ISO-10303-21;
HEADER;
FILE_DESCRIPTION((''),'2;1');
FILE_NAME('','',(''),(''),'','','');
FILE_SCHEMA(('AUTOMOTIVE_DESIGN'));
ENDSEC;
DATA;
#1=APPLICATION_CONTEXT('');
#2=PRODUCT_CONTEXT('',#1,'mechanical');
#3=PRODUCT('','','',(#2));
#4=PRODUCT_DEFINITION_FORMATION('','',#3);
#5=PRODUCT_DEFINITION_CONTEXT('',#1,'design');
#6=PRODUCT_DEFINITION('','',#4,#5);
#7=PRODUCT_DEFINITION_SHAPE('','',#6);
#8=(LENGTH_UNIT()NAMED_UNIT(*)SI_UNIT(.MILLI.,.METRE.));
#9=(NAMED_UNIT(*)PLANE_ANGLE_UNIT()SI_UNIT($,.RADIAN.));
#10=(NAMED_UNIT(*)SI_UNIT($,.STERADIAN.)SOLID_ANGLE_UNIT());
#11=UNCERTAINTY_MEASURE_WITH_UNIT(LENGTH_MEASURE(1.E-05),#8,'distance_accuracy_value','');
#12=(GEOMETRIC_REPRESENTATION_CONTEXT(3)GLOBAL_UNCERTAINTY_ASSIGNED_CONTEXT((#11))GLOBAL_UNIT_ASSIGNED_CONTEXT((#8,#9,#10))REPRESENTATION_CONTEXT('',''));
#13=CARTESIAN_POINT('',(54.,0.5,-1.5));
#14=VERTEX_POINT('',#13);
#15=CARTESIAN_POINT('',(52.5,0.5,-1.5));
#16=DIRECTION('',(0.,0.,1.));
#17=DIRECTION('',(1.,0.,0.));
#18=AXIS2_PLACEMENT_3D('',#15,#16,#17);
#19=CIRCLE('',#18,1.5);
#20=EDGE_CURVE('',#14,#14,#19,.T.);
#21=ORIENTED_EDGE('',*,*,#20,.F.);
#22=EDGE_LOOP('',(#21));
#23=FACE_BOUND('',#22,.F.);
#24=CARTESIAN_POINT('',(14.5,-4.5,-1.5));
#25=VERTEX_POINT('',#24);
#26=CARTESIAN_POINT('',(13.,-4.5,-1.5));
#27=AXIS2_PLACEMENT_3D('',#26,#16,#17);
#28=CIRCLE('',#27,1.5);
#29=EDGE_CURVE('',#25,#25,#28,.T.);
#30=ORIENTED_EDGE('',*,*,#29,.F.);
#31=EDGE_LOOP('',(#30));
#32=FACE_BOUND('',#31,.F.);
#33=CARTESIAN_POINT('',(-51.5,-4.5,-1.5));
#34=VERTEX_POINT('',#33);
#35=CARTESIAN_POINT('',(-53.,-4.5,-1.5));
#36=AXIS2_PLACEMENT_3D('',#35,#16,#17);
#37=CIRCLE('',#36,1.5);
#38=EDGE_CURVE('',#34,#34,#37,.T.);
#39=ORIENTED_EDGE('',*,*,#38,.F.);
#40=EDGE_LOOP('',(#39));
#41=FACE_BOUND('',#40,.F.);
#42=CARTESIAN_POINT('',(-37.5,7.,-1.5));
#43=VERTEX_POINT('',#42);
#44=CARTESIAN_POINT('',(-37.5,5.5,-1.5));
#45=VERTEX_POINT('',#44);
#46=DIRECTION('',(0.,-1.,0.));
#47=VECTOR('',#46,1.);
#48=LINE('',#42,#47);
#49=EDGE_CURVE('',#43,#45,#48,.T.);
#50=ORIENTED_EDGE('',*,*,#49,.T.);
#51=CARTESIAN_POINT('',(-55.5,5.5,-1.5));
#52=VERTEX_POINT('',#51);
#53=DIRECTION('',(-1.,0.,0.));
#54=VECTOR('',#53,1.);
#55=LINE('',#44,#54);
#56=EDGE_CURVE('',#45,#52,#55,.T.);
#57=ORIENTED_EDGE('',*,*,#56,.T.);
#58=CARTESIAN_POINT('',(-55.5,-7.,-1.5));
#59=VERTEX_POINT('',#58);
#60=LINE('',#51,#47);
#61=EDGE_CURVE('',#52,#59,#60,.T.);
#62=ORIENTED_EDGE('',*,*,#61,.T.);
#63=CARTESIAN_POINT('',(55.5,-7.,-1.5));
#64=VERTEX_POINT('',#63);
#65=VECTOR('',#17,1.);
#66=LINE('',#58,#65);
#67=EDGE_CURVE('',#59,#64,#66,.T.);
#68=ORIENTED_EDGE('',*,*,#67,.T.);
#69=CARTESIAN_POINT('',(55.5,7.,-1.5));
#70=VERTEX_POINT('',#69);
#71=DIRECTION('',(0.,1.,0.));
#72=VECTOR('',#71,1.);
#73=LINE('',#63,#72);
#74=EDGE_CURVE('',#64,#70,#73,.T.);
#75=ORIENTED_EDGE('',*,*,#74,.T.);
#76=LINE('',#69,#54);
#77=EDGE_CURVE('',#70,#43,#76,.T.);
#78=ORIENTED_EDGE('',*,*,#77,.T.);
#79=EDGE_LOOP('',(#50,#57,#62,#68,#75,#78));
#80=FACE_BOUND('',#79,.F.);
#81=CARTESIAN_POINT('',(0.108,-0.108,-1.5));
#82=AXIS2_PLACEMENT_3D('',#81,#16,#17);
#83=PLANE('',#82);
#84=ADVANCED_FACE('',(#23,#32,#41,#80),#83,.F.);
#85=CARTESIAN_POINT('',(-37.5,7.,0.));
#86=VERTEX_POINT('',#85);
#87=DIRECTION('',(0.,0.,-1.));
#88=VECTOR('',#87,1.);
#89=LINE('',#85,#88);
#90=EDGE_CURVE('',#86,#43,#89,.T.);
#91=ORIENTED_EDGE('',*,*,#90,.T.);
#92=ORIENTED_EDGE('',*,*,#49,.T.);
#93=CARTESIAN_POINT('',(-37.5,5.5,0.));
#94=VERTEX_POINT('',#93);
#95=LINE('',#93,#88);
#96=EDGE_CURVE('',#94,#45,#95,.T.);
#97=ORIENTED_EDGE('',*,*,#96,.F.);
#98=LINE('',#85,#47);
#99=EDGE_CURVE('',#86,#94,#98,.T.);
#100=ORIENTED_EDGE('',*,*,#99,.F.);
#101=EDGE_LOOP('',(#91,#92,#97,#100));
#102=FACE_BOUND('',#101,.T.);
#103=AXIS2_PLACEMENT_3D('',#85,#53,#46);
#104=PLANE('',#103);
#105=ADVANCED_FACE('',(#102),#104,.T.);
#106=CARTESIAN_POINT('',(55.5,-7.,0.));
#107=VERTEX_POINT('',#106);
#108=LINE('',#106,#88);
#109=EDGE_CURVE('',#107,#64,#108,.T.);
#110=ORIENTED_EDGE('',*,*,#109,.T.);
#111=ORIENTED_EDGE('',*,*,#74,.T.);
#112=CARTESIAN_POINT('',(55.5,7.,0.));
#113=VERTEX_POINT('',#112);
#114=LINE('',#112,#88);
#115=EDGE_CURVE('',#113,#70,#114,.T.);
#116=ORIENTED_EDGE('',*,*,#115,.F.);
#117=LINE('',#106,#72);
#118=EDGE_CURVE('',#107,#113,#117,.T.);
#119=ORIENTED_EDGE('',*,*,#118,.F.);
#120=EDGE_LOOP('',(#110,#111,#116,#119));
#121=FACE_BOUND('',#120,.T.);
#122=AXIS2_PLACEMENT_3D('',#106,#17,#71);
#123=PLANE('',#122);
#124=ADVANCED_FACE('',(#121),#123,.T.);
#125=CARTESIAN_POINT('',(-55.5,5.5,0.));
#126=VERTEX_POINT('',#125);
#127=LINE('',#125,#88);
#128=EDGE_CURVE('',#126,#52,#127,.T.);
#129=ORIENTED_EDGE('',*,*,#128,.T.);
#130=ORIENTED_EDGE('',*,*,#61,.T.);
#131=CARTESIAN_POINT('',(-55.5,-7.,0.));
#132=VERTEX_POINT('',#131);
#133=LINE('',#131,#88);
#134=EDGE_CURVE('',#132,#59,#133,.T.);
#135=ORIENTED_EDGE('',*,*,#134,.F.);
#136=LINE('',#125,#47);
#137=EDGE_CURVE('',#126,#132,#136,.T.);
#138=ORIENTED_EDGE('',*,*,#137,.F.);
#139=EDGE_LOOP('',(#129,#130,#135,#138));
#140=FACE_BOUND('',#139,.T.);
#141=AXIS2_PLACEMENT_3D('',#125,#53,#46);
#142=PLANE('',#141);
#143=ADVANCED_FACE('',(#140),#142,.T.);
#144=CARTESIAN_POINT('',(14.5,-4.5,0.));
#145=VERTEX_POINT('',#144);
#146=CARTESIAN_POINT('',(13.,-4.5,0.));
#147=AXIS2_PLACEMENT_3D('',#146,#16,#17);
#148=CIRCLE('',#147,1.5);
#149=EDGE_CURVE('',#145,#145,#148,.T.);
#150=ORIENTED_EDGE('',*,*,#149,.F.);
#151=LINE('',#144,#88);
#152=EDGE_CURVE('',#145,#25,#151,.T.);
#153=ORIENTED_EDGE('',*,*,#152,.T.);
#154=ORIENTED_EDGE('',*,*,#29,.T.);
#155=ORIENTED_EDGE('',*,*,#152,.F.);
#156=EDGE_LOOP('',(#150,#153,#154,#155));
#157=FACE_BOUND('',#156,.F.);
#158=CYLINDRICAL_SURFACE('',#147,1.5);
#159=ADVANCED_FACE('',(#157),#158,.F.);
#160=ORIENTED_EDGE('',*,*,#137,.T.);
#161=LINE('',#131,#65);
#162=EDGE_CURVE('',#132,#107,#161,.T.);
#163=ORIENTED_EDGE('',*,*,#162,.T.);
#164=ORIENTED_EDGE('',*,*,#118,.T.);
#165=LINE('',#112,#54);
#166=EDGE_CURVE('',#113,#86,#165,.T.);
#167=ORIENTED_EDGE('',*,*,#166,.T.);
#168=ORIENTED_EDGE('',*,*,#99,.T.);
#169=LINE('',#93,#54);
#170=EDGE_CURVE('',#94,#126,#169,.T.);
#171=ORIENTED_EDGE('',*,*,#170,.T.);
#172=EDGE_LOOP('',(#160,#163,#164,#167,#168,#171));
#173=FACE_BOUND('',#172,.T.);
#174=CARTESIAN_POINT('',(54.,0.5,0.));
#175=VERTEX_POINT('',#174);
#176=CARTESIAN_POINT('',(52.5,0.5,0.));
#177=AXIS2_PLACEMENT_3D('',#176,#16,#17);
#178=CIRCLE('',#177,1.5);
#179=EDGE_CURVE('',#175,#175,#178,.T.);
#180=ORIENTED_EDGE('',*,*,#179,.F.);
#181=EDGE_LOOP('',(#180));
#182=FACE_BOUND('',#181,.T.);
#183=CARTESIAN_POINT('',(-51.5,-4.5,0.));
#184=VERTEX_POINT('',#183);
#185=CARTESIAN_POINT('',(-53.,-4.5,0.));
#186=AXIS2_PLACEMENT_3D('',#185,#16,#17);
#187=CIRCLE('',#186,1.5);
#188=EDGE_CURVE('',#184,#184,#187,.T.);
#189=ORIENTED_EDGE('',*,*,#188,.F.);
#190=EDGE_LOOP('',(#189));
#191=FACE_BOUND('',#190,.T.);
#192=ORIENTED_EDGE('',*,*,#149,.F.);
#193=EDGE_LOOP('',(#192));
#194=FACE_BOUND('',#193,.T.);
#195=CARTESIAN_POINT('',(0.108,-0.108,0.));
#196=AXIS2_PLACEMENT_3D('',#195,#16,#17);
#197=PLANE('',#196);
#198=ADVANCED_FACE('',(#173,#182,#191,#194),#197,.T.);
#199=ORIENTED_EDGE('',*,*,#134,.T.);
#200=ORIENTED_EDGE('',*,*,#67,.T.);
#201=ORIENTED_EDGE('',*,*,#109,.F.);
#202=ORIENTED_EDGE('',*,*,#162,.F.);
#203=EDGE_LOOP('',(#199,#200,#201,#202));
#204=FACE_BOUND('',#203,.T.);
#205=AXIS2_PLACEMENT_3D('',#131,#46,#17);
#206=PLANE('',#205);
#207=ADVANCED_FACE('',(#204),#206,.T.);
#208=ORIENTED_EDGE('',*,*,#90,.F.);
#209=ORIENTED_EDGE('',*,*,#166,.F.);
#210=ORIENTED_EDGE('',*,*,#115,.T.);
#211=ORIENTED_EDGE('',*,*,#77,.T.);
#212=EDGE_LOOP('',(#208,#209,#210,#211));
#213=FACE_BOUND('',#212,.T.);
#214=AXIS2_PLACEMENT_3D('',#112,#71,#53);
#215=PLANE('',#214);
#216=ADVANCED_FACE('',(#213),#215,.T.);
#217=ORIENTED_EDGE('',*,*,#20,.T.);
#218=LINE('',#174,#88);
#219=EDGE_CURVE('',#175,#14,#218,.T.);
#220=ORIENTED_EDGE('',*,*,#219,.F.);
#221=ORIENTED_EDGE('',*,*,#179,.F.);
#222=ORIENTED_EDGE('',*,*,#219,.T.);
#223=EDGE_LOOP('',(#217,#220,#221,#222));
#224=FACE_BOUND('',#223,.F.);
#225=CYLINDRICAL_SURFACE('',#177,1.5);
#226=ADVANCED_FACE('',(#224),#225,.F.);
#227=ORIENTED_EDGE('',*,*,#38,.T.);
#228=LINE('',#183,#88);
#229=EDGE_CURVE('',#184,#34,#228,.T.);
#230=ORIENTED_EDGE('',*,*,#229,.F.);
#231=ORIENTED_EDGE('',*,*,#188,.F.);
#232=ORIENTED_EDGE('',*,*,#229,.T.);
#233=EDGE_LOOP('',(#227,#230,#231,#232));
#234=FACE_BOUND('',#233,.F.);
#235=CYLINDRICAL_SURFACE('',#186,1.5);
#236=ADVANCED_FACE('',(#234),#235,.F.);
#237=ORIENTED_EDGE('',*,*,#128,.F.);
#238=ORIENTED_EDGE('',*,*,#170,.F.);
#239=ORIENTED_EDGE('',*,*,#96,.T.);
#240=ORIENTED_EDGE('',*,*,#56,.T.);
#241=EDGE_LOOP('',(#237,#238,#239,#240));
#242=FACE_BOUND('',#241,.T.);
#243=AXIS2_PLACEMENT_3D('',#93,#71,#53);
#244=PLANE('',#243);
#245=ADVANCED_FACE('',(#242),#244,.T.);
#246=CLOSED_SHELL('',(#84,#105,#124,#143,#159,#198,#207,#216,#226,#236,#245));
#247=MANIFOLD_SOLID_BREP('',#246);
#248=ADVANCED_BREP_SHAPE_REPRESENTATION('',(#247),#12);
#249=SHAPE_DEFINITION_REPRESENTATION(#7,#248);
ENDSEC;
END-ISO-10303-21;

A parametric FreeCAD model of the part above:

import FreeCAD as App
import Part
import Sketcher
Q = App.Units.Quantity

doc = App.newDocument("Part")
body = doc.addObject("PartDesign::Body", "Body")

# Sketch on XY plane
sketch1 = body.newObject("Sketcher::SketchObject", "Sketch")
sketch1.AttachmentSupport = (doc.getObject("XY_Plane"), [""])
sketch1.MapMode = "FlatFace"
sketch1.addGeometry([
    Part.LineSegment(App.Vector(-55.5, 5.5, 0), App.Vector(-55.5, -7, 0)),  # 0
    Part.LineSegment(App.Vector(-55.5, -7, 0), App.Vector(55.5, -7, 0)),  # 1
    Part.LineSegment(App.Vector(55.5, -7, 0), App.Vector(55.5, 7, 0)),  # 2
    Part.LineSegment(App.Vector(55.5, 7, 0), App.Vector(-37.5, 7, 0)),  # 3
    Part.LineSegment(App.Vector(-37.5, 7, 0), App.Vector(-37.5, 5.5, 0)),  # 4
    Part.LineSegment(App.Vector(-37.5, 5.5, 0), App.Vector(-55.5, 5.5, 0)),  # 5
    Part.Circle(App.Vector(-53, -4.5, 0), App.Vector(0, 0, 1), 1.5),  # 6
    Part.Circle(App.Vector(13, -4.5, 0), App.Vector(0, 0, 1), 1.5),  # 7
    Part.Circle(App.Vector(52.5, 0.5, 0), App.Vector(0, 0, 1), 1.5),  # 8
], False)
sketch1.addConstraint([
    Sketcher.Constraint("Coincident", 0, 2, 1, 1),
    Sketcher.Constraint("Coincident", 1, 2, 2, 1),
    Sketcher.Constraint("Coincident", 2, 2, 3, 1),
    Sketcher.Constraint("Coincident", 3, 2, 4, 1),
    Sketcher.Constraint("Coincident", 4, 2, 5, 1),
    Sketcher.Constraint("Coincident", 5, 2, 0, 1),
    Sketcher.Constraint("Vertical", 0),
    Sketcher.Constraint("Horizontal", 1),
    Sketcher.Constraint("Vertical", 2),
    Sketcher.Constraint("Horizontal", 3),
    Sketcher.Constraint("Vertical", 4),
    Sketcher.Constraint("Horizontal", 5),
    Sketcher.Constraint("Equal", 6, 7),
    Sketcher.Constraint("Equal", 7, 8),
    Sketcher.Constraint("Symmetric", 0, 2, 2, 2, -1, 1),
    Sketcher.Constraint("Horizontal", 6, 3, 7, 3),
    Sketcher.Constraint("Diameter", 6, Q("3 mm")),
    Sketcher.Constraint("DistanceX", 1, 1, 1, 2, Q("111 mm")),
    Sketcher.Constraint("DistanceX", 3, 2, 3, 1, Q("93 mm")),
    Sketcher.Constraint("DistanceY", 2, 1, 2, 2, Q("14 mm")),
    Sketcher.Constraint("DistanceY", 0, 2, 0, 1, Q("12.5 mm")),
    Sketcher.Constraint("DistanceX", 6, 3, -1, 1, Q("53 mm")),
    Sketcher.Constraint("DistanceX", -1, 1, 7, 3, Q("13 mm")),
    Sketcher.Constraint("DistanceY", 7, 3, 8, 3, Q("5 mm")),
    Sketcher.Constraint("DistanceX", 0, 2, 8, 3, Q("108 mm")),
    Sketcher.Constraint("DistanceY", 6, 3, 4, 2, Q("10 mm")),
])
pad1 = body.newObject("PartDesign::Pad", "Pad")
pad1.Profile = sketch1
pad1.Length = 1.5
pad1.Reversed = True

doc.recompute()
